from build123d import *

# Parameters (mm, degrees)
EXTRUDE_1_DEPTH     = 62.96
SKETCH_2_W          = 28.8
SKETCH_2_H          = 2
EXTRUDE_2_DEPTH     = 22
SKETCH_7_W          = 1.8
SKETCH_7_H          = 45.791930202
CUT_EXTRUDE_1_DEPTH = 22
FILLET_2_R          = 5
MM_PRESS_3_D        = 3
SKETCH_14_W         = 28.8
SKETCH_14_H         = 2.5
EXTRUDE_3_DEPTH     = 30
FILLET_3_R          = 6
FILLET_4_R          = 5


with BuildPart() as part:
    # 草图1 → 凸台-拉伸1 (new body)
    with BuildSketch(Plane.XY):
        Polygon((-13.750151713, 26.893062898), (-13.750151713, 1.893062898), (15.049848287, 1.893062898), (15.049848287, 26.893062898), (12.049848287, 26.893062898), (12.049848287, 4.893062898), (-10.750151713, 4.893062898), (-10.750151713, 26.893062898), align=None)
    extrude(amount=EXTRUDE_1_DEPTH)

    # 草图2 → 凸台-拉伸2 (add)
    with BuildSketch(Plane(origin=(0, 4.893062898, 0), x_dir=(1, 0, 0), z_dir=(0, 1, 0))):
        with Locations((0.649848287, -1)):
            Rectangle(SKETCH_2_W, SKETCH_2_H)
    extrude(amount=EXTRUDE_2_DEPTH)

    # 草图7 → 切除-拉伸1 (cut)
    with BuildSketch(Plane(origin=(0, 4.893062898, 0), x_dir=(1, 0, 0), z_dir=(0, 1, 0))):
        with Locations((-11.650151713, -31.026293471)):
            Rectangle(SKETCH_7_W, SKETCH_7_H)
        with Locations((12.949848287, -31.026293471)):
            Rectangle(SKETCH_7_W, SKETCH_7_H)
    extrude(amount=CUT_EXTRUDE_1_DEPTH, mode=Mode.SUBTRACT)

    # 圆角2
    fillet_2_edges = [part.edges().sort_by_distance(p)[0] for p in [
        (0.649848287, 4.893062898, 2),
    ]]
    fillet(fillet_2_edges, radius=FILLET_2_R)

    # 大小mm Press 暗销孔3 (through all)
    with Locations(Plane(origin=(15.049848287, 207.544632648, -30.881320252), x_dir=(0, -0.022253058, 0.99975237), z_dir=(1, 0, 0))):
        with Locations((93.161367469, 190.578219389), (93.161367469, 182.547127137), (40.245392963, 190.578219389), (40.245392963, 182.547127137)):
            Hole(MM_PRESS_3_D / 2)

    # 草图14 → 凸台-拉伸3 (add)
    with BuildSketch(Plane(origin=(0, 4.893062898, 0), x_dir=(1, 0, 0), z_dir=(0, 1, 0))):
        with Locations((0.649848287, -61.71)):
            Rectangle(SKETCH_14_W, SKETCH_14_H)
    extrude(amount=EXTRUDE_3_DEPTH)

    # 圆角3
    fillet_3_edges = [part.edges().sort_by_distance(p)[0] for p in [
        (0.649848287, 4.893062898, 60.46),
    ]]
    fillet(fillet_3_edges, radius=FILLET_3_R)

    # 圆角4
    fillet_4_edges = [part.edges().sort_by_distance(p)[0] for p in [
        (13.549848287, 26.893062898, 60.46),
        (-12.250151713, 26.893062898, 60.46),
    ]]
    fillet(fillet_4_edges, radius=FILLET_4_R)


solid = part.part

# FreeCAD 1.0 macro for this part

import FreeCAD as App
import Part
import Sketcher


def edges_at(feature, points):
    """Names of the edges that pass closest to the given points."""
    edges = feature.Shape.Edges
    near = lambda p: min(range(len(edges)), key=lambda i: edges[i].distToShape(Part.Vertex(*p))[0])
    return sorted({f"Edge{near(p) + 1}" for p in points})


def add_polygon(sketch, points):
    """Adds a closed chain of lines whose ends are joined by coincident constraints."""
    first, n = sketch.GeometryCount, len(points)
    for a, b in zip(points, points[1:] + points[:1]):
        sketch.addGeometry(Part.LineSegment(App.Vector(*a, 0), App.Vector(*b, 0)), False)
    for i in range(n):
        sketch.addConstraint(Sketcher.Constraint("Coincident", first + i, 2, first + (i + 1) % n, 1))

doc = App.newDocument("Part")
body = doc.addObject("PartDesign::Body", "Body")

# Sketch on XY plane
sketch1 = body.newObject("Sketcher::SketchObject", "Sketch")
sketch1.AttachmentSupport = (doc.getObject("XY_Plane"), [""])
sketch1.MapMode = "FlatFace"
add_polygon(sketch1, [(-13.8, 26.9), (-13.8, 1.9), (15, 1.9), (15, 26.9), (12, 26.9), (12, 4.9), (-10.8, 4.9), (-10.8, 26.9)])  # lines 0-7
sketch1.addConstraint([
    Sketcher.Constraint("Vertical", 0),
    Sketcher.Constraint("Horizontal", 1),
    Sketcher.Constraint("Vertical", 2),
    Sketcher.Constraint("Horizontal", 3),
    Sketcher.Constraint("Vertical", 4),
    Sketcher.Constraint("Horizontal", 5),
    Sketcher.Constraint("Vertical", 6),
    Sketcher.Constraint("Horizontal", 7),
    Sketcher.Constraint("Horizontal", 3, 2, 6, 2),
    Sketcher.Constraint("Equal", 3, 7),
    Sketcher.Constraint("DistanceX", 3, 2, 3, 1, 3.0),
    Sketcher.Constraint("DistanceY", 0, 2, 0, 1, 25.0),
    Sketcher.Constraint("DistanceY", 4, 2, 4, 1, 22.0),
    Sketcher.Constraint("DistanceX", 1, 1, 1, 2, 28.8),
    Sketcher.Constraint("DistanceX", 0, 2, -1, 1, 13.750152),
    Sketcher.Constraint("DistanceY", -1, 1, 0, 2, 1.893063),
])
pad1 = body.newObject("PartDesign::Pad", "Pad")
pad1.Profile = sketch1
pad1.Length = 62.96

# Sketch on XZ plane
sketch2 = body.newObject("Sketcher::SketchObject", "Sketch001")
sketch2.AttachmentSupport = (doc.getObject("XZ_Plane"), [""])
sketch2.MapMode = "FlatFace"
sketch2.AttachmentOffset = App.Placement(App.Vector(0, 0, -4.893063), App.Rotation())
add_polygon(sketch2, [(-13.8, 0), (-13.8, 2), (15, 2), (15, 0)])  # lines 0-3
sketch2.addConstraint([
    Sketcher.Constraint("Vertical", 0),
    Sketcher.Constraint("Horizontal", 1),
    Sketcher.Constraint("Vertical", 2),
    Sketcher.Constraint("Horizontal", 3),
    Sketcher.Constraint("PointOnObject", 2, 2, -1),
    Sketcher.Constraint("DistanceY", 0, 1, 0, 2, 2.0),
    Sketcher.Constraint("DistanceX", 1, 1, 1, 2, 28.8),
    Sketcher.Constraint("DistanceX", 0, 2, -1, 1, 13.750152),
])
pad2 = body.newObject("PartDesign::Pad", "Pad001")
pad2.Profile = sketch2
pad2.Length = 22
pad2.Reversed = True

# Sketch on XZ plane
sketch3 = body.newObject("Sketcher::SketchObject", "Sketch002")
sketch3.AttachmentSupport = (doc.getObject("XZ_Plane"), [""])
sketch3.MapMode = "FlatFace"
sketch3.AttachmentOffset = App.Placement(App.Vector(0, 0, -4.893063), App.Rotation())
add_polygon(sketch3, [(-12.6, 8.1), (-12.6, 53.9), (-10.8, 53.9), (-10.8, 8.1)])  # lines 0-3
add_polygon(sketch3, [(12, 8.1), (12, 53.9), (13.8, 53.9), (13.8, 8.1)])  # lines 4-7
sketch3.addConstraint([
    Sketcher.Constraint("Vertical", 0),
    Sketcher.Constraint("Horizontal", 1),
    Sketcher.Constraint("Vertical", 2),
    Sketcher.Constraint("Horizontal", 3),
    Sketcher.Constraint("Vertical", 4),
    Sketcher.Constraint("Horizontal", 5),
    Sketcher.Constraint("Vertical", 6),
    Sketcher.Constraint("Horizontal", 7),
    Sketcher.Constraint("Horizontal", 1, 2, 4, 2),
    Sketcher.Constraint("Horizontal", 3, 2, 6, 2),
    Sketcher.Constraint("Equal", 3, 5),
    Sketcher.Constraint("DistanceX", 1, 1, 1, 2, 1.8),
    Sketcher.Constraint("DistanceX", 1, 2, 4, 2, 22.8),
    Sketcher.Constraint("DistanceY", 0, 1, 0, 2, 45.79193),
    Sketcher.Constraint("DistanceX", 0, 2, -1, 1, 12.550152),
    Sketcher.Constraint("DistanceY", -1, 1, 0, 2, 53.922259),
])
pocket1 = body.newObject("PartDesign::Pocket", "Pocket")
pocket1.Profile = sketch3
pocket1.Length = 22
doc.recompute()

fillet = body.newObject("PartDesign::Fillet", "Fillet")
fillet.Base = (pocket1, edges_at(pocket1, [(0.65, 4.893, 2)]))
fillet.Radius = 5

# Sketch on YZ plane
sketch4 = body.newObject("Sketcher::SketchObject", "Sketch003")
sketch4.AttachmentSupport = (doc.getObject("YZ_Plane"), [""])
sketch4.MapMode = "FlatFace"
sketch4.AttachmentOffset = App.Placement(App.Vector(0, 0, 15.049848), App.Rotation())
sketch4.addGeometry([
    Part.Circle(App.Vector(14.9, 58, 0), App.Vector(0, 0, 1), 1.5),
    Part.Circle(App.Vector(23, 58.2, 0), App.Vector(0, 0, 1), 1.5),
    Part.Circle(App.Vector(16.1, 5.1, 0), App.Vector(0, 0, 1), 1.5),
    Part.Circle(App.Vector(24.1, 5.3, 0), App.Vector(0, 0, 1), 1.5),
], False)
sketch4.addConstraint([
    Sketcher.Constraint("Equal", 0, 1),
    Sketcher.Constraint("Equal", 1, 2),
    Sketcher.Constraint("Equal", 2, 3),
    Sketcher.Constraint("Diameter", 0, 3.0),
    Sketcher.Constraint("DistanceX", -1, 1, 0, 3, 14.940481),
    Sketcher.Constraint("DistanceY", -1, 1, 0, 3, 58.016029),
    Sketcher.Constraint("DistanceY", -1, 1, 2, 3, 5.113159),
    Sketcher.Constraint("DistanceX", 2, 3, 1, 3, 6.851561),
    Sketcher.Constraint("DistanceY", 3, 3, 1, 3, 52.902871),
    Sketcher.Constraint("DistanceX", -1, 1, 1, 3, 22.969584),
    Sketcher.Constraint("DistanceY", -1, 1, 1, 3, 58.194746),
    Sketcher.Constraint("DistanceX", -1, 1, 3, 3, 24.147127),
])
doc.recompute()
hole = body.newObject("PartDesign::Hole", "Hole")
hole.Profile = sketch4
hole.ThreadType = "None"
hole.Diameter = 3
hole.DepthType = "ThroughAll"

# Sketch on XZ plane
sketch5 = body.newObject("Sketcher::SketchObject", "Sketch004")
sketch5.AttachmentSupport = (doc.getObject("XZ_Plane"), [""])
sketch5.MapMode = "FlatFace"
sketch5.AttachmentOffset = App.Placement(App.Vector(0, 0, -4.893063), App.Rotation())
add_polygon(sketch5, [(-13.8, 60.5), (-13.8, 63), (15, 63), (15, 60.5)])  # lines 0-3
sketch5.addConstraint([
    Sketcher.Constraint("Vertical", 0),
    Sketcher.Constraint("Horizontal", 1),
    Sketcher.Constraint("Vertical", 2),
    Sketcher.Constraint("Horizontal", 3),
    Sketcher.Constraint("DistanceX", 1, 1, 1, 2, 28.8),
    Sketcher.Constraint("DistanceY", 0, 1, 0, 2, 2.5),
    Sketcher.Constraint("DistanceY", -1, 1, 0, 2, 62.96),
    Sketcher.Constraint("DistanceX", 0, 2, -1, 1, 13.750152),
])
pad3 = body.newObject("PartDesign::Pad", "Pad002")
pad3.Profile = sketch5
pad3.Length = 30
pad3.Reversed = True
doc.recompute()

fillet2 = body.newObject("PartDesign::Fillet", "Fillet001")
fillet2.Base = (pad3, edges_at(pad3, [(0.65, 4.893, 60.46)]))
fillet2.Radius = 6
doc.recompute()

fillet3 = body.newObject("PartDesign::Fillet", "Fillet002")
fillet3.Base = (fillet2, edges_at(fillet2, [(13.55, 26.893, 60.46), (-12.25, 26.893, 60.46)]))
fillet3.Radius = 5

doc.recompute()
